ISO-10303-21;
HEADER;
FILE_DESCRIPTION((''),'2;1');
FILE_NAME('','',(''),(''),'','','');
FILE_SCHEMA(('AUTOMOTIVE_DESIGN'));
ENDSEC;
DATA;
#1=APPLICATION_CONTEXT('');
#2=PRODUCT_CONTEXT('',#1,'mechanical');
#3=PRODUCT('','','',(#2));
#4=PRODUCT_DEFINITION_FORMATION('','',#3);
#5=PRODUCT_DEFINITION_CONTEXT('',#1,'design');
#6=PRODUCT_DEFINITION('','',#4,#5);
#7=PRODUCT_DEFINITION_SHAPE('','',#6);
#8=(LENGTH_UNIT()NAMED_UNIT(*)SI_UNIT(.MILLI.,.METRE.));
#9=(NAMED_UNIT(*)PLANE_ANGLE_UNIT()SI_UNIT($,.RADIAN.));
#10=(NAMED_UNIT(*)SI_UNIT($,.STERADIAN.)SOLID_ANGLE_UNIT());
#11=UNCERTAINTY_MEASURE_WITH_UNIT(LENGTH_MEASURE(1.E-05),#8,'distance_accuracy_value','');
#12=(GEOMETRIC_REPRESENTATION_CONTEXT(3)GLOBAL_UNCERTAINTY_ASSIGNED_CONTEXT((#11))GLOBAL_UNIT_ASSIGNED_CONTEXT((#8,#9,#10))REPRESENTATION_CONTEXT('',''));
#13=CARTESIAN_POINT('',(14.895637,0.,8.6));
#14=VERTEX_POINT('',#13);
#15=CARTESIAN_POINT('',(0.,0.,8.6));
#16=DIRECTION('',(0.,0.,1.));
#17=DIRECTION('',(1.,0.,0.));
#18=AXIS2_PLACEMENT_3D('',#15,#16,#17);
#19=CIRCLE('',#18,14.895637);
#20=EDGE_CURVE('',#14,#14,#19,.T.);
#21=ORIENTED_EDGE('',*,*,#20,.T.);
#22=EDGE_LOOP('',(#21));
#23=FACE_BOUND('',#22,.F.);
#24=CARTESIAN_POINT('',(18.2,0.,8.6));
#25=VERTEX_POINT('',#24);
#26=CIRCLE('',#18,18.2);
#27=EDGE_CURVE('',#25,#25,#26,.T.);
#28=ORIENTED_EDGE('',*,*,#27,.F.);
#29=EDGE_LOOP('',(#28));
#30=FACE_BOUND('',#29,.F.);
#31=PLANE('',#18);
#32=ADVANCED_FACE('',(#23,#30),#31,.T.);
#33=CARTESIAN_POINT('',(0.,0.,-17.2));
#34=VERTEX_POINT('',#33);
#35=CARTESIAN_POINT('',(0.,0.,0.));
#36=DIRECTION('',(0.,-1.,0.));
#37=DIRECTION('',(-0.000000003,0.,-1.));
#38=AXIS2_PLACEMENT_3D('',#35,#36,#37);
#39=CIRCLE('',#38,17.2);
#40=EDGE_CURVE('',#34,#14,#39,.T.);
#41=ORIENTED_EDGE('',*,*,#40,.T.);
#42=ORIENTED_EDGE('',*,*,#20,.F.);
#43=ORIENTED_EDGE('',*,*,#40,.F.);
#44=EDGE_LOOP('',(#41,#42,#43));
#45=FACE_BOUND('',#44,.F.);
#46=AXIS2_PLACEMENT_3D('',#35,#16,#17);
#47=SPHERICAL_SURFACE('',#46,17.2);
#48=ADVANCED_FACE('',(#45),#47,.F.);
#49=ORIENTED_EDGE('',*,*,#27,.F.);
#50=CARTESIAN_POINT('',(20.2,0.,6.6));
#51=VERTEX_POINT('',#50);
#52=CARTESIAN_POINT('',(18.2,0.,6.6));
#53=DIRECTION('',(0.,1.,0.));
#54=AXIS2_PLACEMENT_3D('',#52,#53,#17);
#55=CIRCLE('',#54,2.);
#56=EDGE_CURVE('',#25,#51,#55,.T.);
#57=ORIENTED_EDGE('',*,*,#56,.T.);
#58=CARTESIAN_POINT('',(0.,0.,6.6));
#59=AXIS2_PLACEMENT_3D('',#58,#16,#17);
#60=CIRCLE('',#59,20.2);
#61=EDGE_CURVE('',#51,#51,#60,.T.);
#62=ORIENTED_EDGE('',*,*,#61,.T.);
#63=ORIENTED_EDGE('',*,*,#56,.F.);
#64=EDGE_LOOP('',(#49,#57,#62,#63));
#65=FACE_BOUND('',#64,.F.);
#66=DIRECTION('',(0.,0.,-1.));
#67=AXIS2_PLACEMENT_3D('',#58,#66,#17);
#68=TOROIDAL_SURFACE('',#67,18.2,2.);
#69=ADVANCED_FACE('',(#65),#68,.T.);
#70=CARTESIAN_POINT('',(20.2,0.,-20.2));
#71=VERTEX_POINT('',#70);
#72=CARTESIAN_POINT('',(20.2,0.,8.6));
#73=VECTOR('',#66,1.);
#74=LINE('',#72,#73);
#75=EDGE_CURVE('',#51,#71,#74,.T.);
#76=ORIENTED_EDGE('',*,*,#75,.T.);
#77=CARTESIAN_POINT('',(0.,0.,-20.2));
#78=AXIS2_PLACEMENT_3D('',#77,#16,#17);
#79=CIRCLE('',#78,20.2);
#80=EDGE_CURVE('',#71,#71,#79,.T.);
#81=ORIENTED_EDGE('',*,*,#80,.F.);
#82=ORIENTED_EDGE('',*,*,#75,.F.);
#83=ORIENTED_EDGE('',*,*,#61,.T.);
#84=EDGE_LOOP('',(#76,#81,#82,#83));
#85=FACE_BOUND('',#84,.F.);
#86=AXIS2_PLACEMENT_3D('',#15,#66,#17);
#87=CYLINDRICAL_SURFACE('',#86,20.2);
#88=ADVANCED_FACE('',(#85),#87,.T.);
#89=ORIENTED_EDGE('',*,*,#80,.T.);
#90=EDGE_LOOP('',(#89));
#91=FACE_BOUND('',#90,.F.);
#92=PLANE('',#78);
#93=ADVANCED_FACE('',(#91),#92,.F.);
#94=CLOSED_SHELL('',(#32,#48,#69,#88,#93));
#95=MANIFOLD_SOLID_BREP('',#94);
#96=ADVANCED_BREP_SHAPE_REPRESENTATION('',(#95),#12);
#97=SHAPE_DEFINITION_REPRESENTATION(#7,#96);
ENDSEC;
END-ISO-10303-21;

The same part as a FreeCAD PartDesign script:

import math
import FreeCAD as App
import Part
import Sketcher
Q = App.Units.Quantity


def edges_at(feature, points):
    """Names of the edges that pass closest to the given points."""
    edges = feature.Shape.Edges
    near = lambda p: min(range(len(edges)), key=lambda i: edges[i].distToShape(Part.Vertex(*p))[0])
    return sorted({f"Edge{near(p) + 1}" for p in points})

doc = App.newDocument("Part")
params = doc.addObject("Spreadsheet::Sheet", "Params")
for row, (alias, value) in enumerate([
    ("sketch1_radius", "17.2 mm"),
    ("sketch1_height", "3 mm"),
    ("sketch1_width", "20.2 mm"),
    ("sketch1_height2", "28.8 mm"),
    ("revolution_angle", "360 deg"),
    ("fillet_radius", "2 mm"),
], start=1):
    params.set(f"A{row}", alias)
    params.set(f"B{row}", "=" + value)
    params.setAlias(f"B{row}", alias)

body = doc.addObject("PartDesign::Body", "Body")

sketch1 = body.newObject("Sketcher::SketchObject", "Sketch")
sketch1.AttachmentSupport = (doc.getObject("XZ_Plane"), [""])
sketch1.MapMode = "FlatFace"
sketch1.addGeometry([
    Part.ArcOfCircle(Part.Circle(App.Vector(0, 0, 0), App.Vector(0, 0, 1), 17.2), math.radians(-90), math.radians(30)),
    Part.LineSegment(App.Vector(0, -17.2, 0), App.Vector(0, -20.2, 0)),
    Part.LineSegment(App.Vector(0, -20.2, 0), App.Vector(20.2, -20.2, 0)),
    Part.LineSegment(App.Vector(20.2, -20.2, 0), App.Vector(20.2, 8.6, 0)),
    Part.LineSegment(App.Vector(20.2, 8.6, 0), App.Vector(14.9, 8.6, 0)),
], False)
sketch1.addConstraint([
    Sketcher.Constraint("Coincident", 0, 1, 1, 1),
    Sketcher.Constraint("Coincident", 1, 2, 2, 1),
    Sketcher.Constraint("Coincident", 2, 2, 3, 1),
    Sketcher.Constraint("Coincident", 3, 2, 4, 1),
    Sketcher.Constraint("Coincident", 4, 2, 0, 2),
    Sketcher.Constraint("Vertical", 1),
    Sketcher.Constraint("Horizontal", 2),
    Sketcher.Constraint("Vertical", 3),
    Sketcher.Constraint("Horizontal", 4),
    Sketcher.Constraint("Coincident", 0, 3, -1, 1),
    Sketcher.Constraint("PointOnObject", 0, 1, -2),
    Sketcher.Constraint("Radius", 0, Q("17.2 mm")),
    Sketcher.Constraint("DistanceY", 1, 2, 1, 1, Q("3 mm")),
    Sketcher.Constraint("DistanceX", 2, 1, 2, 2, Q("20.2 mm")),
    Sketcher.Constraint("DistanceY", 3, 1, 3, 2, Q("28.8 mm")),
])
sketch1.setExpression("Constraints[11]", "Params.sketch1_radius")
sketch1.setExpression("Constraints[12]", "Params.sketch1_height")
sketch1.setExpression("Constraints[13]", "Params.sketch1_width")
sketch1.setExpression("Constraints[14]", "Params.sketch1_height2")
revolution = body.newObject("PartDesign::Revolution", "Revolution")
revolution.Profile = sketch1
revolution.ReferenceAxis = (sketch1, ["V_Axis"])
revolution.setExpression("Angle", "Params.revolution_angle")
doc.recompute()

fillet = body.newObject("PartDesign::Fillet", "Fillet")
fillet.Base = (revolution, edges_at(revolution, [(-20.2, 0, 8.6)]))
fillet.setExpression("Radius", "Params.fillet_radius")

doc.recompute()
